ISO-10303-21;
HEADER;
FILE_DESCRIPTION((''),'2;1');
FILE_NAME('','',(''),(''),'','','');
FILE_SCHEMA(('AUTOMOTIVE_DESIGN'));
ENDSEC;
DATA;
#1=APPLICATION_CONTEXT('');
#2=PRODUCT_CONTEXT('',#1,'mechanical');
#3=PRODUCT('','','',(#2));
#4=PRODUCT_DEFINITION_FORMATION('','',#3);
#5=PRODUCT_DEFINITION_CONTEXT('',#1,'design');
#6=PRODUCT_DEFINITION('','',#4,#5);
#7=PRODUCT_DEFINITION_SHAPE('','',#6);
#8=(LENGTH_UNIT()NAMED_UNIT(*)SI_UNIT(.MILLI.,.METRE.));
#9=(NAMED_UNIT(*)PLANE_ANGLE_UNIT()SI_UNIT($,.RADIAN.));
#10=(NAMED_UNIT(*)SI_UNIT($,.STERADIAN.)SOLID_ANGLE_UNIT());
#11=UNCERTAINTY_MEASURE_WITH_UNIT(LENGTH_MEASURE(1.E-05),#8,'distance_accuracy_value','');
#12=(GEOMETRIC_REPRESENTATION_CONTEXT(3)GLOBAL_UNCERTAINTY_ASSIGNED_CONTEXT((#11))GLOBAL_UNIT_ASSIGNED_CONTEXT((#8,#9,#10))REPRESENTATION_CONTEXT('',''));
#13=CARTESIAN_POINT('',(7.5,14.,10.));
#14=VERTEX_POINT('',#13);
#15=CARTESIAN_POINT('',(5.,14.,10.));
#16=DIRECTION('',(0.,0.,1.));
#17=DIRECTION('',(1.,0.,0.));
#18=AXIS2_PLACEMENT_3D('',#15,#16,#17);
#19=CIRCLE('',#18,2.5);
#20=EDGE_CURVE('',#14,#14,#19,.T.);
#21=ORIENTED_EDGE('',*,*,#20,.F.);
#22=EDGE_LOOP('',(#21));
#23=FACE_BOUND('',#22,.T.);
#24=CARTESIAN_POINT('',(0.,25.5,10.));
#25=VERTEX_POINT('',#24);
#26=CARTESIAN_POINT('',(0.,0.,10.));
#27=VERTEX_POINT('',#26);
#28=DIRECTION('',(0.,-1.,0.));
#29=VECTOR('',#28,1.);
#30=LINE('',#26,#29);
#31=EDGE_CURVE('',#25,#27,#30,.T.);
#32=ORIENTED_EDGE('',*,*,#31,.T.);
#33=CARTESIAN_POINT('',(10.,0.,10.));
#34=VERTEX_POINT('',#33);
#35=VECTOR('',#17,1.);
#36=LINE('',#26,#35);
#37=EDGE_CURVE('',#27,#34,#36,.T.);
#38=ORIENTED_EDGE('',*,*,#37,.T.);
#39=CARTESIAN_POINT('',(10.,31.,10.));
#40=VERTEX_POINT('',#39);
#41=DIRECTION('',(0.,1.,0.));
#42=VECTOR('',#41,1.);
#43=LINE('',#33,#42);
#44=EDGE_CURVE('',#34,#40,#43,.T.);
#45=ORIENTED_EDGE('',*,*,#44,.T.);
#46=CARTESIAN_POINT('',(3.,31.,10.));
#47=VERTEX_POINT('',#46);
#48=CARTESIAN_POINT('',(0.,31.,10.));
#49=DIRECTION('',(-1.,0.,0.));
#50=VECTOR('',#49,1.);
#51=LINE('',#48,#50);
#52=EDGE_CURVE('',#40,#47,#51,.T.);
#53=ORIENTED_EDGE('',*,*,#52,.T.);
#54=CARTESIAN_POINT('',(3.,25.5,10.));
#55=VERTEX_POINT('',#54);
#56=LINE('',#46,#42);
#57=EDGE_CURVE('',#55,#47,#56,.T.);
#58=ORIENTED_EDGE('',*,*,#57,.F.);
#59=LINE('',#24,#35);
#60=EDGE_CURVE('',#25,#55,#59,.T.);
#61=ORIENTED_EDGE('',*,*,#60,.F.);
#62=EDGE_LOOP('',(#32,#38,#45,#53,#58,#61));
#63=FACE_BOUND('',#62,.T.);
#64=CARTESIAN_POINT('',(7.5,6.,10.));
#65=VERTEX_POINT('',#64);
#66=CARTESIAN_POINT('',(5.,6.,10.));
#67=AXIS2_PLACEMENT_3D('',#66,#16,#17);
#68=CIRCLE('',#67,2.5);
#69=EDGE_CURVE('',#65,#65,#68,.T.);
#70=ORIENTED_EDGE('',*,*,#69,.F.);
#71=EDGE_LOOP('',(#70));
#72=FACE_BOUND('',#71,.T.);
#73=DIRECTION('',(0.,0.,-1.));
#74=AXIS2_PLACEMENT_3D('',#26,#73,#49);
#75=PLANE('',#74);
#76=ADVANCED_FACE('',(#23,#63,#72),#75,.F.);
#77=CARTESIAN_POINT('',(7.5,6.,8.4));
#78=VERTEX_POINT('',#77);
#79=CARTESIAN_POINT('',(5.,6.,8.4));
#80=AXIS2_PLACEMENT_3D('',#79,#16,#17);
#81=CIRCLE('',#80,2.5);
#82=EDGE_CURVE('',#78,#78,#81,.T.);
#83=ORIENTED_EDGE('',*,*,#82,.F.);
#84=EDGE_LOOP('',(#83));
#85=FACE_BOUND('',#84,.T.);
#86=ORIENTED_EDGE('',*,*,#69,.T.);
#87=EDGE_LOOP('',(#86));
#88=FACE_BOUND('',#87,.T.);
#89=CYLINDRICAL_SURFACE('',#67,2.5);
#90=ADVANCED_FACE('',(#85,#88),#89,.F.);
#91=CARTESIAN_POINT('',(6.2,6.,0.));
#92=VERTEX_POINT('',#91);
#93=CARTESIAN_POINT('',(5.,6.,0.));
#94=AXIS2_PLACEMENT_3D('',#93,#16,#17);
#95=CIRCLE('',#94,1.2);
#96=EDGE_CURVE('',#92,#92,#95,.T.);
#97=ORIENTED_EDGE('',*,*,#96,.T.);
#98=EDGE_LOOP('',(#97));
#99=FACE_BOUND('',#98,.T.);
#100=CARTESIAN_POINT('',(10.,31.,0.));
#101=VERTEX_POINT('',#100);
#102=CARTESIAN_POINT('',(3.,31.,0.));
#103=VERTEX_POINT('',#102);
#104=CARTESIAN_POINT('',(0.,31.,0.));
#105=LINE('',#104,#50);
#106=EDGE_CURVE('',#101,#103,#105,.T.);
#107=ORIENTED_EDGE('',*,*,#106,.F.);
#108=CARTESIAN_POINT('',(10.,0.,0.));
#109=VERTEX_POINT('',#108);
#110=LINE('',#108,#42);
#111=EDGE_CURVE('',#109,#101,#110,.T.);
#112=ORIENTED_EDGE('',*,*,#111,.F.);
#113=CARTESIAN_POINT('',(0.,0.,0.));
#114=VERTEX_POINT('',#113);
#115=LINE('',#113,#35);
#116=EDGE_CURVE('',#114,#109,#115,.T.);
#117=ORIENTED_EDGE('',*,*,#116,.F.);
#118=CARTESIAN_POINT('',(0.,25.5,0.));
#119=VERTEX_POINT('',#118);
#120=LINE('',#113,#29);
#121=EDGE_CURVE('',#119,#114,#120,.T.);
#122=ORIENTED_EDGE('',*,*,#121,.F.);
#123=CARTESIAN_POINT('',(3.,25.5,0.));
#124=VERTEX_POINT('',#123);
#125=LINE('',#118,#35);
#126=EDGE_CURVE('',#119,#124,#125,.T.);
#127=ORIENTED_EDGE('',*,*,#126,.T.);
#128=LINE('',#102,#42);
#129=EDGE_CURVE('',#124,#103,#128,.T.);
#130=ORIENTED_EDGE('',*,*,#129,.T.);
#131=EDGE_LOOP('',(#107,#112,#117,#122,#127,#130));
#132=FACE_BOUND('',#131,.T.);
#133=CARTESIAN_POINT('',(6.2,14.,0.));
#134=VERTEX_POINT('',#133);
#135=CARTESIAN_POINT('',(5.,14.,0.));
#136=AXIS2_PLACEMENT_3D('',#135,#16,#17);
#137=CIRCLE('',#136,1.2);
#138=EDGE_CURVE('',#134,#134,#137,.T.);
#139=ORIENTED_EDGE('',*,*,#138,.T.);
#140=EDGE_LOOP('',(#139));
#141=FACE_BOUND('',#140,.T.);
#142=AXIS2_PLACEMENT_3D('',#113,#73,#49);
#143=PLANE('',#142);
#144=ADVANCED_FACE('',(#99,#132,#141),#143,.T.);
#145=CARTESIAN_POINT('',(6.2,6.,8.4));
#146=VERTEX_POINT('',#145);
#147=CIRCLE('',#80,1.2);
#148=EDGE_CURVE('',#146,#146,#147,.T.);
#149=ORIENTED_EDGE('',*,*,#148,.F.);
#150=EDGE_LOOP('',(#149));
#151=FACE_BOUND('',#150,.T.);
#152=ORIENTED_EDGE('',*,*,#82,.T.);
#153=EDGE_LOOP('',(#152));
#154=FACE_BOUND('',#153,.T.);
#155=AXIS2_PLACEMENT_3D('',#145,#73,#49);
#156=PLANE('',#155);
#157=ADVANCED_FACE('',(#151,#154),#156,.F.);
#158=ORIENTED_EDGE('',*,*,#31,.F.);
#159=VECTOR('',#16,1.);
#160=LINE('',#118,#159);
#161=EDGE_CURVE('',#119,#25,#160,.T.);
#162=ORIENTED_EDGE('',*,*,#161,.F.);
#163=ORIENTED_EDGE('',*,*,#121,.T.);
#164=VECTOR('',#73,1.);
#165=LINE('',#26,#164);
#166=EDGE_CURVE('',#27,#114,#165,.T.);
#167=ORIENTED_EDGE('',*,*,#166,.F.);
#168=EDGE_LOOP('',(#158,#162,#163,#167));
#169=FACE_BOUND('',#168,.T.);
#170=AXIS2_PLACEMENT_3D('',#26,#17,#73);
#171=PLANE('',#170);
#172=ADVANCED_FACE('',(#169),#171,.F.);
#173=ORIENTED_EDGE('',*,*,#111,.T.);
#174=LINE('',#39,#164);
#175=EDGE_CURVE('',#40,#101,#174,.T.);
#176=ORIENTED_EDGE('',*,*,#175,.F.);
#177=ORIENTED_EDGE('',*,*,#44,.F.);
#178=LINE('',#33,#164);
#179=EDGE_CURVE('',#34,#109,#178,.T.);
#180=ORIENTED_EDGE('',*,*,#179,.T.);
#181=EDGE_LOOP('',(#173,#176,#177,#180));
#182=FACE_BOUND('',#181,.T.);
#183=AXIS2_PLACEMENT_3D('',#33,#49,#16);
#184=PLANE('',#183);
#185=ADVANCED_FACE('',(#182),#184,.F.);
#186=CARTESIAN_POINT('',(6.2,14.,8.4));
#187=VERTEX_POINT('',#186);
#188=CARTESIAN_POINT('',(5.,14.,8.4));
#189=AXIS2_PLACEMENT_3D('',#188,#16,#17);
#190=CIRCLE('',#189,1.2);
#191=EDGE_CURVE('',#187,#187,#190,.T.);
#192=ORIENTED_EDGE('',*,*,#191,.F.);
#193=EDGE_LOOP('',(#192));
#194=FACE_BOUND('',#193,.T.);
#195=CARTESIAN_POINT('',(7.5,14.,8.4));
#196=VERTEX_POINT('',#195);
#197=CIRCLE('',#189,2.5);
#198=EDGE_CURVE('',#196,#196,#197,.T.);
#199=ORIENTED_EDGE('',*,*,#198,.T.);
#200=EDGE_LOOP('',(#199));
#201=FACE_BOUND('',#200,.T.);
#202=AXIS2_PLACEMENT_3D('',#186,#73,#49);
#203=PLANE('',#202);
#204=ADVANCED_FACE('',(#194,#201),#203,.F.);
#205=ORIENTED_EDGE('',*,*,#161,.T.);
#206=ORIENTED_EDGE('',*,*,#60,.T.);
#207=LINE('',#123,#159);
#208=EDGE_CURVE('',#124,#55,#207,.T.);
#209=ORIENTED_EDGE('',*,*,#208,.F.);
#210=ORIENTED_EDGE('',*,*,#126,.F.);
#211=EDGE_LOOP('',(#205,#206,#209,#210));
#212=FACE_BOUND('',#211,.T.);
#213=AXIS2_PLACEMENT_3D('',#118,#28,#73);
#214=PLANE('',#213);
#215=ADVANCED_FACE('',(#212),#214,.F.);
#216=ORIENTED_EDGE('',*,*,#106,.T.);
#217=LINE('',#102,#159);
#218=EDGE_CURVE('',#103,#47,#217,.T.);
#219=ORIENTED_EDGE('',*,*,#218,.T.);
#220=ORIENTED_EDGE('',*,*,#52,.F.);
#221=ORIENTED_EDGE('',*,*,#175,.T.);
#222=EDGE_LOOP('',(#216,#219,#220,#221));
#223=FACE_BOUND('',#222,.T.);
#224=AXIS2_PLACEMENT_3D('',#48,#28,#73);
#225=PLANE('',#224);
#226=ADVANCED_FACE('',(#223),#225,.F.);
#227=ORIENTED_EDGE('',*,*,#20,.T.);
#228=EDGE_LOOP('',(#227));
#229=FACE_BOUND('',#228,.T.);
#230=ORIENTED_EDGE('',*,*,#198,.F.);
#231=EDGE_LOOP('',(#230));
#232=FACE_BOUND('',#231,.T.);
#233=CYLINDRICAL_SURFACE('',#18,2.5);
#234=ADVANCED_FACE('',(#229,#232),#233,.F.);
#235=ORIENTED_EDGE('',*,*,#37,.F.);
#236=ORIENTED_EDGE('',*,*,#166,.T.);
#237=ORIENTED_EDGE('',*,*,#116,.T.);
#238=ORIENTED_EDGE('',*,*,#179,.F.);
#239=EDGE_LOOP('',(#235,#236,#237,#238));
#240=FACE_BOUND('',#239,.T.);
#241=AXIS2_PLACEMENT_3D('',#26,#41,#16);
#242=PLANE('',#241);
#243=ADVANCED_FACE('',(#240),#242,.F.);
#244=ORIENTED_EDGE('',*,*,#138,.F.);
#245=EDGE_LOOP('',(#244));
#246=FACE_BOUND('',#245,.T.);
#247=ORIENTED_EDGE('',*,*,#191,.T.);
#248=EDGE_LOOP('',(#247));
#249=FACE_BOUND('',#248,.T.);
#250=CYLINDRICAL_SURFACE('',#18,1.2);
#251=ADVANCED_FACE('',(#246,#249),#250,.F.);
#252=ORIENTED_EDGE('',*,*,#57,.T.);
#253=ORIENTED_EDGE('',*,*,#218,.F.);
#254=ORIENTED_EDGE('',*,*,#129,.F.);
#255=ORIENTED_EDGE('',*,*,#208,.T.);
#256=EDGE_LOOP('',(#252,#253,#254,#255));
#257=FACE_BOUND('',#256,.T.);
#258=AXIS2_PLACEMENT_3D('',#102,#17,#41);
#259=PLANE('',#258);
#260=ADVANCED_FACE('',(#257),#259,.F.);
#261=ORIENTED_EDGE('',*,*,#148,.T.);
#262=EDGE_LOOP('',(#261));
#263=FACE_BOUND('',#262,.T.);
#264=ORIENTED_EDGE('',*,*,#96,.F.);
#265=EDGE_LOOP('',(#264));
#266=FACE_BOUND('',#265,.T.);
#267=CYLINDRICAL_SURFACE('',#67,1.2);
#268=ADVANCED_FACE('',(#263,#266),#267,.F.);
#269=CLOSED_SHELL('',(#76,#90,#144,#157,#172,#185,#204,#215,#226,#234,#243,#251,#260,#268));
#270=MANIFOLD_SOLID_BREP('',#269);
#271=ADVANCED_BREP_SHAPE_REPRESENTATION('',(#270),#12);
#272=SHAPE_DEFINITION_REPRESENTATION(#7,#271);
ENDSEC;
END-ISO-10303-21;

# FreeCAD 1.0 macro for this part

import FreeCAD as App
import Part
import Sketcher

doc = App.newDocument("Part")
body = doc.addObject("PartDesign::Body", "Body")

# Sketch on XY plane
sketch1 = doc.addObject("Sketcher::SketchObject", "Sketch")
body.addObject(sketch1)
sketch1.AttachmentSupport = (doc.XY_Plane, [""])
sketch1.MapMode = "FlatFace"
sketch1.addGeometry(Part.LineSegment(App.Vector(0, 31, 0), App.Vector(0, 0, 0)), False)
sketch1.addGeometry(Part.LineSegment(App.Vector(0, 0, 0), App.Vector(10, 0, 0)), False)
sketch1.addGeometry(Part.LineSegment(App.Vector(10, 0, 0), App.Vector(10, 31, 0)), False)
sketch1.addGeometry(Part.LineSegment(App.Vector(10, 31, 0), App.Vector(0, 31, 0)), False)
sketch1.addConstraint(Sketcher.Constraint("Coincident", 0, 2, 1, 1))
sketch1.addConstraint(Sketcher.Constraint("Coincident", 1, 2, 2, 1))
sketch1.addConstraint(Sketcher.Constraint("Coincident", 2, 2, 3, 1))
sketch1.addConstraint(Sketcher.Constraint("Coincident", 3, 2, 0, 1))
sketch1.addConstraint(Sketcher.Constraint("Vertical", 0))
sketch1.addConstraint(Sketcher.Constraint("Horizontal", 1))
sketch1.addConstraint(Sketcher.Constraint("Vertical", 2))
sketch1.addConstraint(Sketcher.Constraint("Horizontal", 3))
sketch1.addConstraint(Sketcher.Constraint("Coincident", 0, 2, -1, 1))
sketch1.addConstraint(Sketcher.Constraint("DistanceX", 1, 1, 1, 2, 10.0))
sketch1.addConstraint(Sketcher.Constraint("DistanceY", 0, 2, 0, 1, 31.0))
pad1 = doc.addObject("PartDesign::Pad", "Pad")
body.addObject(pad1)
pad1.Profile = sketch1
pad1.Length = 10

# Sketch on XY plane
sketch2 = doc.addObject("Sketcher::SketchObject", "Sketch001")
body.addObject(sketch2)
sketch2.AttachmentSupport = (doc.XY_Plane, [""])
sketch2.MapMode = "FlatFace"
sketch2.AttachmentOffset = App.Placement(App.Vector(0, 0, 10), App.Rotation())
sketch2.addGeometry(Part.LineSegment(App.Vector(0, 31, 0), App.Vector(0, 25.5, 0)), False)
sketch2.addGeometry(Part.LineSegment(App.Vector(0, 25.5, 0), App.Vector(3, 25.5, 0)), False)
sketch2.addGeometry(Part.LineSegment(App.Vector(3, 25.5, 0), App.Vector(3, 31, 0)), False)
sketch2.addGeometry(Part.LineSegment(App.Vector(3, 31, 0), App.Vector(0, 31, 0)), False)
sketch2.addConstraint(Sketcher.Constraint("Coincident", 0, 2, 1, 1))
sketch2.addConstraint(Sketcher.Constraint("Coincident", 1, 2, 2, 1))
sketch2.addConstraint(Sketcher.Constraint("Coincident", 2, 2, 3, 1))
sketch2.addConstraint(Sketcher.Constraint("Coincident", 3, 2, 0, 1))
sketch2.addConstraint(Sketcher.Constraint("Vertical", 0))
sketch2.addConstraint(Sketcher.Constraint("Horizontal", 1))
sketch2.addConstraint(Sketcher.Constraint("Vertical", 2))
sketch2.addConstraint(Sketcher.Constraint("Horizontal", 3))
sketch2.addConstraint(Sketcher.Constraint("PointOnObject", 0, 2, -2))
sketch2.addConstraint(Sketcher.Constraint("DistanceX", 1, 1, 1, 2, 3.0))
sketch2.addConstraint(Sketcher.Constraint("DistanceY", 0, 2, 0, 1, 5.5))
sketch2.addConstraint(Sketcher.Constraint("DistanceY", -1, 1, 2, 2, 31.0))
pocket1 = doc.addObject("PartDesign::Pocket", "Pocket")
body.addObject(pocket1)
pocket1.Profile = sketch2
pocket1.Length = 10

# Sketch on XY plane
sketch3 = doc.addObject("Sketcher::SketchObject", "Sketch002")
body.addObject(sketch3)
sketch3.AttachmentSupport = (doc.XY_Plane, [""])
sketch3.MapMode = "FlatFace"
sketch3.AttachmentOffset = App.Placement(App.Vector(0, 0, 10), App.Rotation())
sketch3.addGeometry(Part.Circle(App.Vector(5, 14, 0), App.Vector(0, 0, 1), 1.2), False)
sketch3.addGeometry(Part.Circle(App.Vector(5, 6, 0), App.Vector(0, 0, 1), 1.2), False)
sketch3.addConstraint(Sketcher.Constraint("Equal", 0, 1))
sketch3.addConstraint(Sketcher.Constraint("Vertical", 0, 3, 1, 3))
sketch3.addConstraint(Sketcher.Constraint("Diameter", 0, 2.4))
sketch3.addConstraint(Sketcher.Constraint("DistanceX", -1, 1, 0, 3, 5.0))
sketch3.addConstraint(Sketcher.Constraint("DistanceY", -1, 1, 0, 3, 14.0))
sketch3.addConstraint(Sketcher.Constraint("DistanceY", -1, 1, 1, 3, 6.0))
doc.recompute()
hole = doc.addObject("PartDesign::Hole", "Hole")
body.addObject(hole)
hole.Profile = sketch3
hole.ThreadType = "None"
hole.Diameter = 2.4
hole.DepthType = "Dimension"
hole.Depth = 10
hole.DrillPoint = "Angled"
hole.DrillPointAngle = 118
hole.HoleCutType = "Counterbore"
hole.HoleCutDiameter = 5
hole.HoleCutDepth = 1.6

doc.recompute()
